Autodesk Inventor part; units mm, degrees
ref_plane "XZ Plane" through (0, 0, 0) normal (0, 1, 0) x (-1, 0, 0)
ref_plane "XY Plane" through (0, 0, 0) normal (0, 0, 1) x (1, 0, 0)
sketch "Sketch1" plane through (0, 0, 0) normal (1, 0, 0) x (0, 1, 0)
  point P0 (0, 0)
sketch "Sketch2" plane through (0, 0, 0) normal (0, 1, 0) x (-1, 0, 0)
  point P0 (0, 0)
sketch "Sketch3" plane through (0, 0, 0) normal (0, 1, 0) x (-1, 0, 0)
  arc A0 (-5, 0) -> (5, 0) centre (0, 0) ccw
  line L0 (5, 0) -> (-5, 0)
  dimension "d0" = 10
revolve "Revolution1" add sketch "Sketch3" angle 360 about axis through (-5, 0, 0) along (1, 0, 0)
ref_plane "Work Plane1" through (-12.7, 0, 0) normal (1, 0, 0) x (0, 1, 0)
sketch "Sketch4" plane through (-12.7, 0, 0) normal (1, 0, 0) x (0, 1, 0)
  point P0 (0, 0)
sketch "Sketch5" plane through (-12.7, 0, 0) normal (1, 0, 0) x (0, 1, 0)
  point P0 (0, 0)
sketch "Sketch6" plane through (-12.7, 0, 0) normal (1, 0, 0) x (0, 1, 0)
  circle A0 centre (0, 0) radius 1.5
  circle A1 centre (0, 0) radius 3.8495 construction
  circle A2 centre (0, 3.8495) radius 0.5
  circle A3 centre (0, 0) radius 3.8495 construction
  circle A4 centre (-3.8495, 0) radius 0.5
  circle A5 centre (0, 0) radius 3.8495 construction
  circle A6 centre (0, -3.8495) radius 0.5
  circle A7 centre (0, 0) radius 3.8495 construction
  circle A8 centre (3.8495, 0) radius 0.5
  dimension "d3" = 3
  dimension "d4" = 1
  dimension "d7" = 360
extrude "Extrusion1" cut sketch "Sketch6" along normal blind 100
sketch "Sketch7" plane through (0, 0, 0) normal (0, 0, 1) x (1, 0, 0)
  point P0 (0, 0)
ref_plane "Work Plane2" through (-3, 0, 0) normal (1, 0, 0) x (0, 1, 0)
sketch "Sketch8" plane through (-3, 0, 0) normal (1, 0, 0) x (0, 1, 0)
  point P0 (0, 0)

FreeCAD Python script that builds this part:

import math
import FreeCAD as App
import Part
import Sketcher

V = App.Vector
Q = App.Units.Quantity

doc = App.newDocument("Part")
body = doc.addObject("PartDesign::Body", "Body")

# Sketch on XZ plane
sketch1 = doc.addObject("Sketcher::SketchObject", "Sketch")
body.addObject(sketch1)
sketch1.AttachmentSupport = (doc.XZ_Plane, [""])
sketch1.MapMode = "FlatFace"
sketch1.addGeometry(Part.LineSegment(V(-5, 0, 0), V(5, 0, 0)), False)
sketch1.addGeometry(Part.ArcOfCircle(Part.Circle(V(0, 0, 0), V(0, 0, 1), 5), math.radians(180), math.radians(360)), False)
sketch1.addConstraint(Sketcher.Constraint("Coincident", 0, 1, 1, 1))
sketch1.addConstraint(Sketcher.Constraint("Coincident", 1, 2, 0, 2))
sketch1.addConstraint(Sketcher.Constraint("Horizontal", 0))
sketch1.addConstraint(Sketcher.Constraint("Coincident", 1, 3, -1, 1))
sketch1.addConstraint(Sketcher.Constraint("PointOnObject", 0, 1, -1))
sketch1.addConstraint(Sketcher.Constraint("Radius", 1, Q("5 mm")))
revolution = doc.addObject("PartDesign::Revolution", "Revolution")
body.addObject(revolution)
revolution.Profile = sketch1
revolution.ReferenceAxis = (sketch1, ["H_Axis"])
revolution.Angle = 360

# Sketch on YZ plane
sketch2 = doc.addObject("Sketcher::SketchObject", "Sketch001")
body.addObject(sketch2)
sketch2.AttachmentSupport = (doc.YZ_Plane, [""])
sketch2.MapMode = "FlatFace"
sketch2.AttachmentOffset = App.Placement(V(0, 0, -12.7), App.Rotation())
sketch2.addGeometry(Part.Circle(V(0, 0, 0), V(0, 0, 1), 1.5), False)
sketch2.addGeometry(Part.Circle(V(0, 3.8, 0), V(0, 0, 1), 0.5), False)
sketch2.addGeometry(Part.Circle(V(-3.8, 0, 0), V(0, 0, 1), 0.5), False)
sketch2.addGeometry(Part.Circle(V(0, -3.8, 0), V(0, 0, 1), 0.5), False)
sketch2.addGeometry(Part.Circle(V(3.8, 0, 0), V(0, 0, 1), 0.5), False)
sketch2.addConstraint(Sketcher.Constraint("Coincident", 0, 3, -1, 1))
sketch2.addConstraint(Sketcher.Constraint("Equal", 1, 2))
sketch2.addConstraint(Sketcher.Constraint("Equal", 2, 3))
sketch2.addConstraint(Sketcher.Constraint("Equal", 3, 4))
sketch2.addConstraint(Sketcher.Constraint("Symmetric", 1, 3, 3, 3, -1, 1))
sketch2.addConstraint(Sketcher.Constraint("Symmetric", 2, 3, 4, 3, -1, 1))
sketch2.addConstraint(Sketcher.Constraint("PointOnObject", 1, 3, -2))
sketch2.addConstraint(Sketcher.Constraint("PointOnObject", 2, 3, -1))
sketch2.addConstraint(Sketcher.Constraint("Diameter", 0, Q("3 mm")))
sketch2.addConstraint(Sketcher.Constraint("Diameter", 1, Q("1 mm")))
sketch2.addConstraint(Sketcher.Constraint("DistanceY", 3, 3, 1, 3, Q("7.699 mm")))
sketch2.addConstraint(Sketcher.Constraint("DistanceX", 2, 3, 4, 3, Q("7.699 mm")))
pocket1 = doc.addObject("PartDesign::Pocket", "Pocket")
body.addObject(pocket1)
pocket1.Profile = sketch2
pocket1.Length = 100
pocket1.Reversed = True

doc.recompute()
